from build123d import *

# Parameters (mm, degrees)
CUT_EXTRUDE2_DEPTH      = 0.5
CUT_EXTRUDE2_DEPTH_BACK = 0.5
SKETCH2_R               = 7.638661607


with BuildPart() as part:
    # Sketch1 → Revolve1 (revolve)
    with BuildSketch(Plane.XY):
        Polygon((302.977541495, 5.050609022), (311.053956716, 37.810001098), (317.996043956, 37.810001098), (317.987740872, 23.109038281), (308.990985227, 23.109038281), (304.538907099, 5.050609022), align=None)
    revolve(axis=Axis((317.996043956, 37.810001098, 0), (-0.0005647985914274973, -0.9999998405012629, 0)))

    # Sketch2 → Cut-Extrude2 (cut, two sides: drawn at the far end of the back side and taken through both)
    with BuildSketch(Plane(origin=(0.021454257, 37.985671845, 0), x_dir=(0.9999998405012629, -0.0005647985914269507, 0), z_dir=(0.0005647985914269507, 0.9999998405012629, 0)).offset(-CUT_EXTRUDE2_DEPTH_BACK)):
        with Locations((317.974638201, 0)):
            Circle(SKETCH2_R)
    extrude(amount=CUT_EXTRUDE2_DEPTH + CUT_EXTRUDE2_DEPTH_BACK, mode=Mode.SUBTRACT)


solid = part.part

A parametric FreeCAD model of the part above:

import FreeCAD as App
import Part
import Sketcher

V = App.Vector
Q = App.Units.Quantity


def add_polygon(sketch, points):
    """Adds a closed chain of lines whose ends are joined by coincident constraints."""
    first, n = sketch.GeometryCount, len(points)
    for a, b in zip(points, points[1:] + points[:1]):
        sketch.addGeometry(Part.LineSegment(App.Vector(*a, 0), App.Vector(*b, 0)), False)
    for i in range(n):
        sketch.addConstraint(Sketcher.Constraint("Coincident", first + i, 2, first + (i + 1) % n, 1))

doc = App.newDocument("Part")
body = doc.addObject("PartDesign::Body", "Body")

# Sketch on XY plane
sketch1 = body.newObject("Sketcher::SketchObject", "Sketch")
sketch1.AttachmentSupport = (doc.getObject("XY_Plane"), [""])
sketch1.MapMode = "FlatFace"
add_polygon(sketch1, [(311.1, 37.8), (303, 5.1), (304.5, 5.1), (309, 23.1), (318, 23.1), (318, 37.8)])  # lines 0-5
sketch1.addGeometry(Part.LineSegment(V(318, 37.8, 0), V(318, 5, 0)), True)  # axis
sketch1.addConstraint([
    Sketcher.Constraint("Horizontal", 1),
    Sketcher.Constraint("Horizontal", 3),
    Sketcher.Constraint("Horizontal", 5),
    Sketcher.Constraint("Coincident", 6, 1, 4, 2),
    Sketcher.Constraint("Parallel", 0, 2),
    Sketcher.Constraint("Parallel", 4, 6),
    Sketcher.Constraint("DistanceY", -1, 1, 4, 2, Q("37.810001 mm")),
    Sketcher.Constraint("DistanceX", 0, 2, 3, 2, Q("15.010199 mm")),
    Sketcher.Constraint("DistanceY", 6, 2, 3, 2, Q("18.066901 mm")),
    Sketcher.Constraint("Distance", 6, Q("32.767869 mm")),
    Sketcher.Constraint("DistanceX", 1, 1, 1, 2, Q("1.561366 mm")),
    Sketcher.Constraint("DistanceX", 3, 1, 3, 2, Q("8.996756 mm")),
    Sketcher.Constraint("DistanceX", 5, 2, 5, 1, Q("6.942087 mm")),
    Sketcher.Constraint("DistanceX", -1, 1, 0, 2, Q("302.977541 mm")),
    Sketcher.Constraint("DistanceY", -1, 1, 0, 2, Q("5.050609 mm")),
])
revolution = body.newObject("PartDesign::Revolution", "Revolution")
revolution.Profile = sketch1
revolution.ReferenceAxis = (sketch1, ["Axis0"])
revolution.Angle = 360

# Sketch on an angled plane
sketch2 = body.newObject("Sketcher::SketchObject", "Sketch001")
sketch2.Placement = App.Placement(V(0.021454, 37.985672, 0), App.Rotation(V(0.999999841, -0.000564799, 0), V(0, 0, -1.000000001), V(0.000564799, 0.999999841, 0), "ZXY"))
sketch2.addGeometry(Part.Circle(V(318, 0, 0), V(0, 0, 1), 8), False)
sketch2.addConstraint([
    Sketcher.Constraint("PointOnObject", 0, 3, -1),
    Sketcher.Constraint("Diameter", 0, Q("15.277323 mm")),
    Sketcher.Constraint("DistanceX", -1, 1, 0, 3, Q("317.974639 mm")),
])
pocket1 = body.newObject("PartDesign::Pocket", "Pocket")
pocket1.Profile = sketch2
pocket1.Type = "TwoLengths"
pocket1.Length = 0.5
pocket1.Length2 = 0.5
pocket1.Reversed = True

doc.recompute()
